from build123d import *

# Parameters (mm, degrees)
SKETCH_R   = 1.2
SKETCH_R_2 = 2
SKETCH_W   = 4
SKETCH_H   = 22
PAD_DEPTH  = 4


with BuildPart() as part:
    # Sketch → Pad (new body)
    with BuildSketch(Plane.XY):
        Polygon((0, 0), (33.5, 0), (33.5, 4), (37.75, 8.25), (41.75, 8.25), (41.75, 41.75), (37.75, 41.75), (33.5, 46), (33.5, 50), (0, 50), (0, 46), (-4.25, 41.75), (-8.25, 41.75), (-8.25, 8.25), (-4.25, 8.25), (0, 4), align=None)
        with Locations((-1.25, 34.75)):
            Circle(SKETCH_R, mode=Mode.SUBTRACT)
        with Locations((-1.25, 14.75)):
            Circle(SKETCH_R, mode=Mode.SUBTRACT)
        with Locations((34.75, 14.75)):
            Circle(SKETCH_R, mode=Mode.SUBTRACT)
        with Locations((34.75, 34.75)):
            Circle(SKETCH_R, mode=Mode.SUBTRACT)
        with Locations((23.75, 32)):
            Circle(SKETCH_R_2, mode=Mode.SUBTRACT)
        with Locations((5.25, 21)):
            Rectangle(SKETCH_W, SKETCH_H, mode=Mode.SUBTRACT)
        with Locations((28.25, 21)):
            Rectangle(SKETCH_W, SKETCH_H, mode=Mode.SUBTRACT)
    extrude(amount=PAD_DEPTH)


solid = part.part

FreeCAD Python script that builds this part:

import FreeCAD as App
import Part
import Sketcher

V = App.Vector
Q = App.Units.Quantity


def add_polygon(sketch, points):
    """Adds a closed chain of lines whose ends are joined by coincident constraints."""
    first, n = sketch.GeometryCount, len(points)
    for a, b in zip(points, points[1:] + points[:1]):
        sketch.addGeometry(Part.LineSegment(App.Vector(*a, 0), App.Vector(*b, 0)), False)
    for i in range(n):
        sketch.addConstraint(Sketcher.Constraint("Coincident", first + i, 2, first + (i + 1) % n, 1))

doc = App.newDocument("Part")
body = doc.addObject("PartDesign::Body", "Body")

# Sketch on XY plane
sketch1 = body.newObject("Sketcher::SketchObject", "Sketch")
sketch1.AttachmentSupport = (doc.getObject("XY_Plane"), [""])
sketch1.MapMode = "FlatFace"
add_polygon(sketch1, [(0, 0), (33.5, 0), (33.5, 4), (37.8, 8.2), (41.8, 8.2), (41.8, 41.8), (37.8, 41.8), (33.5, 46), (33.5, 50), (0, 50), (0, 46), (-4.2, 41.8), (-8.2, 41.8), (-8.2, 8.2), (-4.2, 8.2), (0, 4)])  # lines 0-15
sketch1.addGeometry(Part.Circle(V(-1.2, 14.8, 0), V(0, 0, 1), 1.2), False)  # 16
add_polygon(sketch1, [(7.2, 10), (3.2, 10), (3.2, 32), (7.2, 32)])  # lines 17-20
sketch1.addGeometry(Part.Circle(V(34.8, 14.8, 0), V(0, 0, 1), 1.2), False)  # 21
add_polygon(sketch1, [(30.2, 10), (26.2, 10), (26.2, 32), (30.2, 32)])  # lines 22-25
sketch1.addGeometry(Part.Circle(V(-1.2, 34.8, 0), V(0, 0, 1), 1.2), False)  # 26
sketch1.addGeometry(Part.Circle(V(23.8, 32, 0), V(0, 0, 1), 2), False)  # 27
sketch1.addGeometry(Part.Circle(V(34.8, 34.8, 0), V(0, 0, 1), 1.2), False)  # 28
sketch1.addConstraint([
    Sketcher.Constraint("Horizontal", 0),
    Sketcher.Constraint("Vertical", 1),
    Sketcher.Constraint("Horizontal", 3),
    Sketcher.Constraint("Vertical", 4),
    Sketcher.Constraint("Horizontal", 5),
    Sketcher.Constraint("Vertical", 7),
    Sketcher.Constraint("Horizontal", 8),
    Sketcher.Constraint("Vertical", 9),
    Sketcher.Constraint("Horizontal", 11),
    Sketcher.Constraint("Vertical", 12),
    Sketcher.Constraint("Horizontal", 13),
    Sketcher.Constraint("Vertical", 15),
    Sketcher.Constraint("Horizontal", 17),
    Sketcher.Constraint("Vertical", 18),
    Sketcher.Constraint("Horizontal", 19),
    Sketcher.Constraint("Vertical", 20),
    Sketcher.Constraint("Horizontal", 22),
    Sketcher.Constraint("Vertical", 23),
    Sketcher.Constraint("Horizontal", 24),
    Sketcher.Constraint("Vertical", 25),
    Sketcher.Constraint("Coincident", 15, 2, -1, 1),
    Sketcher.Constraint("Equal", 16, 21),
    Sketcher.Constraint("Equal", 21, 26),
    Sketcher.Constraint("Equal", 26, 28),
    Sketcher.Constraint("PointOnObject", 8, 2, -2),
    Sketcher.Constraint("Perpendicular", 2, 6),
    Sketcher.Constraint("Perpendicular", 6, 10),
    Sketcher.Constraint("Perpendicular", 10, 14),
    Sketcher.Constraint("Horizontal", 16, 3, 21, 3),
    Sketcher.Constraint("Horizontal", 26, 3, 28, 3),
    Sketcher.Constraint("Horizontal", 6, 2, 9, 2),
    Sketcher.Constraint("Horizontal", 5, 2, 10, 2),
    Sketcher.Constraint("Horizontal", 3, 2, 12, 2),
    Sketcher.Constraint("Horizontal", 1, 2, 14, 2),
    Sketcher.Constraint("Horizontal", 27, 3, 18, 2),
    Sketcher.Constraint("Horizontal", 20, 2, 22, 2),
    Sketcher.Constraint("Horizontal", 19, 2, 23, 2),
    Sketcher.Constraint("Vertical", 16, 3, 26, 3),
    Sketcher.Constraint("Vertical", 21, 3, 28, 3),
    Sketcher.Constraint("Vertical", 2, 2, 5, 2),
    Sketcher.Constraint("Vertical", 1, 2, 6, 2),
    Sketcher.Constraint("Vertical", 10, 2, 13, 2),
    Sketcher.Constraint("Equal", 5, 11),
    Sketcher.Constraint("Equal", 13, 17),
    Sketcher.Constraint("Equal", 19, 22),
    Sketcher.Constraint("Equal", 24, 1),
    Sketcher.Constraint("Equal", 8, 4),
    Sketcher.Constraint("Equal", 1, 7),
    Sketcher.Constraint("Diameter", 27, Q("4 mm")),
    Sketcher.Constraint("Diameter", 16, Q("2.4 mm")),
    Sketcher.Constraint("DistanceX", 3, 1, 3, 2, Q("4 mm")),
    Sketcher.Constraint("DistanceY", 18, 1, 18, 2, Q("22 mm")),
    Sketcher.Constraint("DistanceX", 0, 1, 0, 2, Q("33.5 mm")),
    Sketcher.Constraint("DistanceY", -1, 1, 27, 3, Q("32 mm")),
    Sketcher.Constraint("DistanceY", -1, 1, 6, 2, Q("46 mm")),
    Sketcher.Constraint("DistanceX", 16, 3, 21, 3, Q("36 mm")),
    Sketcher.Constraint("DistanceY", 16, 3, 26, 3, Q("20 mm")),
    Sketcher.Constraint("DistanceX", 27, 3, 21, 3, Q("11 mm")),
    Sketcher.Constraint("DistanceX", 21, 3, 2, 2, Q("3 mm")),
    Sketcher.Constraint("DistanceY", 28, 3, 4, 2, Q("7 mm")),
    Sketcher.Constraint("DistanceX", 16, 3, 17, 2, Q("4.5 mm")),
    Sketcher.Constraint("DistanceX", 22, 2, 21, 3, Q("8.5 mm")),
])
pad1 = body.newObject("PartDesign::Pad", "Pad")
pad1.Profile = sketch1
pad1.Length = 4

doc.recompute()
